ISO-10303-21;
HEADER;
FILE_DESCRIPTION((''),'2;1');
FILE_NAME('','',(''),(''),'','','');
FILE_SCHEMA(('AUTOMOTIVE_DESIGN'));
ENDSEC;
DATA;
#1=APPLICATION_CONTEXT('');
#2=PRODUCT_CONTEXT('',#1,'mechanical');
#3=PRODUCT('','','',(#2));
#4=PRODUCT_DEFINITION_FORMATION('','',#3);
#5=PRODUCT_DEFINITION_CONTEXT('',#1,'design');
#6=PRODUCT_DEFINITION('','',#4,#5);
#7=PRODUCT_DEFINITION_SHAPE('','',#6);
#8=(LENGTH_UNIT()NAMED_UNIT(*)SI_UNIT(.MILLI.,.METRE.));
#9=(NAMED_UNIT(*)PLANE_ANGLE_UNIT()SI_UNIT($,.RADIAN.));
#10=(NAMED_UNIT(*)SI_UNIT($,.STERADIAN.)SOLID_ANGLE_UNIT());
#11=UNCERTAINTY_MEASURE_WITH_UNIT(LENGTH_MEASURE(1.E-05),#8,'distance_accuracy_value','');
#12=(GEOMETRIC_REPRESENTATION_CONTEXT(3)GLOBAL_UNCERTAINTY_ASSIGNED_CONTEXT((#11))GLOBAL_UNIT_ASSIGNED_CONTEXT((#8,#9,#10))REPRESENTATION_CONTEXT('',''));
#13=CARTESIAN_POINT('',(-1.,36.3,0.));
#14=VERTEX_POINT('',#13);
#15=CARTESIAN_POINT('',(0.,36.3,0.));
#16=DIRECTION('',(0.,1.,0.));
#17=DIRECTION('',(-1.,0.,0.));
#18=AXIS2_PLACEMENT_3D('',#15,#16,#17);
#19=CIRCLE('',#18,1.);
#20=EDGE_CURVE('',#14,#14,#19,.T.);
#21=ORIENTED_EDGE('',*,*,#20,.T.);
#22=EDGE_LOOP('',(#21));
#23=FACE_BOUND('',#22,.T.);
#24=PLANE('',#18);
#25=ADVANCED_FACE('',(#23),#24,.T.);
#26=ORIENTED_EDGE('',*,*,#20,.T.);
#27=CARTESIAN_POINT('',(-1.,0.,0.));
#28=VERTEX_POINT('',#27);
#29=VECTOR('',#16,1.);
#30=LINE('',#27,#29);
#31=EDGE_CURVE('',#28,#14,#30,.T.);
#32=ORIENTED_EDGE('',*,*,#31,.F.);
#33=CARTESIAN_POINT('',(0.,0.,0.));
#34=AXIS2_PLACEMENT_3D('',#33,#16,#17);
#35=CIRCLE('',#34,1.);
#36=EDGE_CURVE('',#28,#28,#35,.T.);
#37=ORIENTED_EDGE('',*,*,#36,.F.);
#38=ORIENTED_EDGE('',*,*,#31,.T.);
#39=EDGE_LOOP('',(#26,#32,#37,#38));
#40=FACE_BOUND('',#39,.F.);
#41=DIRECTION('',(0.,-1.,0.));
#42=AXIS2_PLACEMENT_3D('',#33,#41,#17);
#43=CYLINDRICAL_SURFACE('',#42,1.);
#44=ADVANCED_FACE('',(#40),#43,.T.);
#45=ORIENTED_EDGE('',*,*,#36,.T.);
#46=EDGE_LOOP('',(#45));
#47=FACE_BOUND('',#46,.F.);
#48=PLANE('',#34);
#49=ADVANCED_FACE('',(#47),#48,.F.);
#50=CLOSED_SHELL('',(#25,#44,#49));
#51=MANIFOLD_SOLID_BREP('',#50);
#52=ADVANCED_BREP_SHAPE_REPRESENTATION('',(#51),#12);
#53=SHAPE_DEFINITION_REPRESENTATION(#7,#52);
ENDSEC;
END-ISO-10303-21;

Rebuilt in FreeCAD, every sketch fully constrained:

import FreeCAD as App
import Part
import Sketcher
from FreeCAD import Vector
Q = App.Units.Quantity

doc = App.newDocument("Part")
params = doc.addObject("Spreadsheet::Sheet", "Params")
for row, (alias, value) in enumerate([
    ("sketch1_diameter", "2 mm"),
    ("pad1_length", "36.3 mm"),
], start=1):
    params.set(f"A{row}", alias)
    params.set(f"B{row}", "=" + value)
    params.setAlias(f"B{row}", alias)

body = doc.addObject("PartDesign::Body", "Body")

# Sketch on XZ plane
sketch1 = body.newObject("Sketcher::SketchObject", "Sketch")
sketch1.AttachmentSupport = (doc.getObject("XZ_Plane"), [""])
sketch1.MapMode = "FlatFace"
sketch1.addGeometry(Part.Circle(Vector(0, 0, 0), Vector(0, 0, 1), 1), False)
sketch1.addConstraint(Sketcher.Constraint("Coincident", 0, 3, -1, 1))
sketch1.addConstraint(Sketcher.Constraint("Diameter", 0, Q("2 mm")))
sketch1.setExpression("Constraints[1]", "Params.sketch1_diameter")
pad1 = body.newObject("PartDesign::Pad", "Pad")
pad1.Profile = sketch1
pad1.setExpression("Length", "Params.pad1_length")
pad1.Reversed = True

doc.recompute()
